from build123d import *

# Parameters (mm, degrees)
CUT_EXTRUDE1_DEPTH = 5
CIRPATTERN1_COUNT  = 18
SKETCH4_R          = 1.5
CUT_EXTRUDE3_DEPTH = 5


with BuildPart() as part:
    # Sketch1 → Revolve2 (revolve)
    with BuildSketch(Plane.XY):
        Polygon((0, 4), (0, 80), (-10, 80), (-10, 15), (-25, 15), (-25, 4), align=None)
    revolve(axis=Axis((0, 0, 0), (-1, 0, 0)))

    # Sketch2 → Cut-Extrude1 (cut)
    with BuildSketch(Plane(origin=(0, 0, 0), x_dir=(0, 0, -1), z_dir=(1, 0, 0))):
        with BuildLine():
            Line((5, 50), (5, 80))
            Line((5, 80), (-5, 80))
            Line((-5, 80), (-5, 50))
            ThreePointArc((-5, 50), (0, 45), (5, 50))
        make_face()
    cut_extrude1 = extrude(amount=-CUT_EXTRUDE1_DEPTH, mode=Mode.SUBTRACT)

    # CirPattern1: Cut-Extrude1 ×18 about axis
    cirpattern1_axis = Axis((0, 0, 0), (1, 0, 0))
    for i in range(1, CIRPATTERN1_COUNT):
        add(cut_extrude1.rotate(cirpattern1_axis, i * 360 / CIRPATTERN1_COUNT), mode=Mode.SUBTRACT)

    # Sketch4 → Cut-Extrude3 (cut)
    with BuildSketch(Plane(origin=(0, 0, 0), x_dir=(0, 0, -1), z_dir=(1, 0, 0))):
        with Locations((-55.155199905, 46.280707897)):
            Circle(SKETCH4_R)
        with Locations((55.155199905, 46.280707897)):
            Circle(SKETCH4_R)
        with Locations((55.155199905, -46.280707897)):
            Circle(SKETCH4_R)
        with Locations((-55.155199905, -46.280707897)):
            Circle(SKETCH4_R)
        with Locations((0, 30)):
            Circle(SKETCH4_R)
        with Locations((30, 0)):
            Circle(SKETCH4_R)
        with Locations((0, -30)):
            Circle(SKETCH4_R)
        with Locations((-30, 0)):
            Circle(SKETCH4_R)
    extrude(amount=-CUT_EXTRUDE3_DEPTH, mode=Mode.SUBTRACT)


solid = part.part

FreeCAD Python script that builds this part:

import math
import FreeCAD as App
import Part
import Sketcher
Q = App.Units.Quantity

doc = App.newDocument("Part")
body = doc.addObject("PartDesign::Body", "Body")

# Sketch on XY plane
sketch1 = body.newObject("Sketcher::SketchObject", "Sketch")
sketch1.AttachmentSupport = (doc.getObject("XY_Plane"), [""])
sketch1.MapMode = "FlatFace"
sketch1.addGeometry(Part.LineSegment(App.Vector(0, 4, 0), App.Vector(0, 80, 0)), False)
sketch1.addGeometry(Part.LineSegment(App.Vector(0, 80, 0), App.Vector(-10, 80, 0)), False)
sketch1.addGeometry(Part.LineSegment(App.Vector(-10, 80, 0), App.Vector(-10, 15, 0)), False)
sketch1.addGeometry(Part.LineSegment(App.Vector(-10, 15, 0), App.Vector(-25, 15, 0)), False)
sketch1.addGeometry(Part.LineSegment(App.Vector(-25, 15, 0), App.Vector(-25, 4, 0)), False)
sketch1.addGeometry(Part.LineSegment(App.Vector(-25, 4, 0), App.Vector(0, 4, 0)), False)
sketch1.addConstraint(Sketcher.Constraint("Coincident", 0, 2, 1, 1))
sketch1.addConstraint(Sketcher.Constraint("Coincident", 1, 2, 2, 1))
sketch1.addConstraint(Sketcher.Constraint("Coincident", 2, 2, 3, 1))
sketch1.addConstraint(Sketcher.Constraint("Coincident", 3, 2, 4, 1))
sketch1.addConstraint(Sketcher.Constraint("Coincident", 4, 2, 5, 1))
sketch1.addConstraint(Sketcher.Constraint("Coincident", 5, 2, 0, 1))
sketch1.addConstraint(Sketcher.Constraint("Vertical", 0))
sketch1.addConstraint(Sketcher.Constraint("Horizontal", 1))
sketch1.addConstraint(Sketcher.Constraint("Vertical", 2))
sketch1.addConstraint(Sketcher.Constraint("Horizontal", 3))
sketch1.addConstraint(Sketcher.Constraint("Vertical", 4))
sketch1.addConstraint(Sketcher.Constraint("Horizontal", 5))
sketch1.addConstraint(Sketcher.Constraint("PointOnObject", 0, 2, -2))
sketch1.addConstraint(Sketcher.Constraint("DistanceX", 1, 2, 1, 1, Q("10 mm")))
sketch1.addConstraint(Sketcher.Constraint("DistanceX", 3, 2, 3, 1, Q("15 mm")))
sketch1.addConstraint(Sketcher.Constraint("DistanceY", 0, 1, 0, 2, Q("76 mm")))
sketch1.addConstraint(Sketcher.Constraint("DistanceY", 2, 2, 2, 1, Q("65 mm")))
sketch1.addConstraint(Sketcher.Constraint("DistanceY", -1, 1, 0, 2, Q("80 mm")))
revolution = body.newObject("PartDesign::Revolution", "Revolution")
revolution.Profile = sketch1
revolution.ReferenceAxis = (sketch1, ["H_Axis"])
revolution.Angle = 360

# Sketch on YZ plane
sketch2 = body.newObject("Sketcher::SketchObject", "Sketch001")
sketch2.AttachmentSupport = (doc.getObject("YZ_Plane"), [""])
sketch2.MapMode = "FlatFace"
sketch2.addGeometry(Part.LineSegment(App.Vector(50, -5, 0), App.Vector(80, -5, 0)), False)
sketch2.addGeometry(Part.LineSegment(App.Vector(80, -5, 0), App.Vector(80, 5, 0)), False)
sketch2.addGeometry(Part.LineSegment(App.Vector(80, 5, 0), App.Vector(50, 5, 0)), False)
sketch2.addGeometry(Part.ArcOfCircle(Part.Circle(App.Vector(50, 0, 0), App.Vector(0, 0, 1), 5), math.radians(90), math.radians(270)), False)
sketch2.addConstraint(Sketcher.Constraint("Coincident", 0, 2, 1, 1))
sketch2.addConstraint(Sketcher.Constraint("Coincident", 1, 2, 2, 1))
sketch2.addConstraint(Sketcher.Constraint("Tangent", 2, 2, 3, 1))
sketch2.addConstraint(Sketcher.Constraint("Tangent", 3, 2, 0, 1))
sketch2.addConstraint(Sketcher.Constraint("Horizontal", 0))
sketch2.addConstraint(Sketcher.Constraint("Vertical", 1))
sketch2.addConstraint(Sketcher.Constraint("Horizontal", 2))
sketch2.addConstraint(Sketcher.Constraint("PointOnObject", 3, 3, -1))
sketch2.addConstraint(Sketcher.Constraint("Radius", 3, Q("5 mm")))
sketch2.addConstraint(Sketcher.Constraint("DistanceX", 0, 1, 0, 2, Q("30 mm")))
sketch2.addConstraint(Sketcher.Constraint("DistanceX", -1, 1, 3, 3, Q("50 mm")))
pocket1 = body.newObject("PartDesign::Pocket", "Pocket")
pocket1.Profile = sketch2
pocket1.Length = 5
doc.recompute()

polarpattern = body.newObject("PartDesign::PolarPattern", "PolarPattern")
polarpattern.Originals = [pocket1]
polarpattern.Axis = (doc.getObject("X_Axis"), [""])
polarpattern.Angle = 360
polarpattern.Occurrences = 18
body.Tip = polarpattern

# Sketch on YZ plane
sketch3 = body.newObject("Sketcher::SketchObject", "Sketch002")
sketch3.AttachmentSupport = (doc.getObject("YZ_Plane"), [""])
sketch3.MapMode = "FlatFace"
sketch3.addGeometry(Part.Circle(App.Vector(46.3, 55.2, 0), App.Vector(0, 0, 1), 1.5), False)
sketch3.addGeometry(Part.Circle(App.Vector(46.3, -55.2, 0), App.Vector(0, 0, 1), 1.5), False)
sketch3.addGeometry(Part.Circle(App.Vector(-46.3, -55.2, 0), App.Vector(0, 0, 1), 1.5), False)
sketch3.addGeometry(Part.Circle(App.Vector(-46.3, 55.2, 0), App.Vector(0, 0, 1), 1.5), False)
sketch3.addGeometry(Part.Circle(App.Vector(30, 0, 0), App.Vector(0, 0, 1), 1.5), False)
sketch3.addGeometry(Part.Circle(App.Vector(0, -30, 0), App.Vector(0, 0, 1), 1.5), False)
sketch3.addGeometry(Part.Circle(App.Vector(-30, 0, 0), App.Vector(0, 0, 1), 1.5), False)
sketch3.addGeometry(Part.Circle(App.Vector(0, 30, 0), App.Vector(0, 0, 1), 1.5), False)
sketch3.addConstraint(Sketcher.Constraint("Equal", 0, 1))
sketch3.addConstraint(Sketcher.Constraint("Equal", 1, 2))
sketch3.addConstraint(Sketcher.Constraint("Equal", 2, 3))
sketch3.addConstraint(Sketcher.Constraint("Equal", 3, 4))
sketch3.addConstraint(Sketcher.Constraint("Equal", 4, 5))
sketch3.addConstraint(Sketcher.Constraint("Equal", 5, 6))
sketch3.addConstraint(Sketcher.Constraint("Equal", 6, 7))
sketch3.addConstraint(Sketcher.Constraint("Symmetric", 0, 3, 2, 3, -1, 1))
sketch3.addConstraint(Sketcher.Constraint("Symmetric", 1, 3, 3, 3, -1, 1))
sketch3.addConstraint(Sketcher.Constraint("Symmetric", 4, 3, 6, 3, -1, 1))
sketch3.addConstraint(Sketcher.Constraint("Symmetric", 5, 3, 7, 3, -1, 1))
sketch3.addConstraint(Sketcher.Constraint("Symmetric", 1, 3, 2, 3, -2))
sketch3.addConstraint(Sketcher.Constraint("PointOnObject", 4, 3, -1))
sketch3.addConstraint(Sketcher.Constraint("PointOnObject", 5, 3, -2))
sketch3.addConstraint(Sketcher.Constraint("Diameter", 0, Q("3 mm")))
sketch3.addConstraint(Sketcher.Constraint("DistanceX", -1, 1, 4, 3, Q("30 mm")))
sketch3.addConstraint(Sketcher.Constraint("DistanceY", 5, 3, -1, 1, Q("30 mm")))
sketch3.addConstraint(Sketcher.Constraint("DistanceY", -1, 1, 0, 3, Q("55.1552 mm")))
sketch3.addConstraint(Sketcher.Constraint("DistanceX", -1, 1, 0, 3, Q("46.280708 mm")))
pocket2 = body.newObject("PartDesign::Pocket", "Pocket001")
pocket2.Profile = sketch3
pocket2.Length = 5

doc.recompute()
